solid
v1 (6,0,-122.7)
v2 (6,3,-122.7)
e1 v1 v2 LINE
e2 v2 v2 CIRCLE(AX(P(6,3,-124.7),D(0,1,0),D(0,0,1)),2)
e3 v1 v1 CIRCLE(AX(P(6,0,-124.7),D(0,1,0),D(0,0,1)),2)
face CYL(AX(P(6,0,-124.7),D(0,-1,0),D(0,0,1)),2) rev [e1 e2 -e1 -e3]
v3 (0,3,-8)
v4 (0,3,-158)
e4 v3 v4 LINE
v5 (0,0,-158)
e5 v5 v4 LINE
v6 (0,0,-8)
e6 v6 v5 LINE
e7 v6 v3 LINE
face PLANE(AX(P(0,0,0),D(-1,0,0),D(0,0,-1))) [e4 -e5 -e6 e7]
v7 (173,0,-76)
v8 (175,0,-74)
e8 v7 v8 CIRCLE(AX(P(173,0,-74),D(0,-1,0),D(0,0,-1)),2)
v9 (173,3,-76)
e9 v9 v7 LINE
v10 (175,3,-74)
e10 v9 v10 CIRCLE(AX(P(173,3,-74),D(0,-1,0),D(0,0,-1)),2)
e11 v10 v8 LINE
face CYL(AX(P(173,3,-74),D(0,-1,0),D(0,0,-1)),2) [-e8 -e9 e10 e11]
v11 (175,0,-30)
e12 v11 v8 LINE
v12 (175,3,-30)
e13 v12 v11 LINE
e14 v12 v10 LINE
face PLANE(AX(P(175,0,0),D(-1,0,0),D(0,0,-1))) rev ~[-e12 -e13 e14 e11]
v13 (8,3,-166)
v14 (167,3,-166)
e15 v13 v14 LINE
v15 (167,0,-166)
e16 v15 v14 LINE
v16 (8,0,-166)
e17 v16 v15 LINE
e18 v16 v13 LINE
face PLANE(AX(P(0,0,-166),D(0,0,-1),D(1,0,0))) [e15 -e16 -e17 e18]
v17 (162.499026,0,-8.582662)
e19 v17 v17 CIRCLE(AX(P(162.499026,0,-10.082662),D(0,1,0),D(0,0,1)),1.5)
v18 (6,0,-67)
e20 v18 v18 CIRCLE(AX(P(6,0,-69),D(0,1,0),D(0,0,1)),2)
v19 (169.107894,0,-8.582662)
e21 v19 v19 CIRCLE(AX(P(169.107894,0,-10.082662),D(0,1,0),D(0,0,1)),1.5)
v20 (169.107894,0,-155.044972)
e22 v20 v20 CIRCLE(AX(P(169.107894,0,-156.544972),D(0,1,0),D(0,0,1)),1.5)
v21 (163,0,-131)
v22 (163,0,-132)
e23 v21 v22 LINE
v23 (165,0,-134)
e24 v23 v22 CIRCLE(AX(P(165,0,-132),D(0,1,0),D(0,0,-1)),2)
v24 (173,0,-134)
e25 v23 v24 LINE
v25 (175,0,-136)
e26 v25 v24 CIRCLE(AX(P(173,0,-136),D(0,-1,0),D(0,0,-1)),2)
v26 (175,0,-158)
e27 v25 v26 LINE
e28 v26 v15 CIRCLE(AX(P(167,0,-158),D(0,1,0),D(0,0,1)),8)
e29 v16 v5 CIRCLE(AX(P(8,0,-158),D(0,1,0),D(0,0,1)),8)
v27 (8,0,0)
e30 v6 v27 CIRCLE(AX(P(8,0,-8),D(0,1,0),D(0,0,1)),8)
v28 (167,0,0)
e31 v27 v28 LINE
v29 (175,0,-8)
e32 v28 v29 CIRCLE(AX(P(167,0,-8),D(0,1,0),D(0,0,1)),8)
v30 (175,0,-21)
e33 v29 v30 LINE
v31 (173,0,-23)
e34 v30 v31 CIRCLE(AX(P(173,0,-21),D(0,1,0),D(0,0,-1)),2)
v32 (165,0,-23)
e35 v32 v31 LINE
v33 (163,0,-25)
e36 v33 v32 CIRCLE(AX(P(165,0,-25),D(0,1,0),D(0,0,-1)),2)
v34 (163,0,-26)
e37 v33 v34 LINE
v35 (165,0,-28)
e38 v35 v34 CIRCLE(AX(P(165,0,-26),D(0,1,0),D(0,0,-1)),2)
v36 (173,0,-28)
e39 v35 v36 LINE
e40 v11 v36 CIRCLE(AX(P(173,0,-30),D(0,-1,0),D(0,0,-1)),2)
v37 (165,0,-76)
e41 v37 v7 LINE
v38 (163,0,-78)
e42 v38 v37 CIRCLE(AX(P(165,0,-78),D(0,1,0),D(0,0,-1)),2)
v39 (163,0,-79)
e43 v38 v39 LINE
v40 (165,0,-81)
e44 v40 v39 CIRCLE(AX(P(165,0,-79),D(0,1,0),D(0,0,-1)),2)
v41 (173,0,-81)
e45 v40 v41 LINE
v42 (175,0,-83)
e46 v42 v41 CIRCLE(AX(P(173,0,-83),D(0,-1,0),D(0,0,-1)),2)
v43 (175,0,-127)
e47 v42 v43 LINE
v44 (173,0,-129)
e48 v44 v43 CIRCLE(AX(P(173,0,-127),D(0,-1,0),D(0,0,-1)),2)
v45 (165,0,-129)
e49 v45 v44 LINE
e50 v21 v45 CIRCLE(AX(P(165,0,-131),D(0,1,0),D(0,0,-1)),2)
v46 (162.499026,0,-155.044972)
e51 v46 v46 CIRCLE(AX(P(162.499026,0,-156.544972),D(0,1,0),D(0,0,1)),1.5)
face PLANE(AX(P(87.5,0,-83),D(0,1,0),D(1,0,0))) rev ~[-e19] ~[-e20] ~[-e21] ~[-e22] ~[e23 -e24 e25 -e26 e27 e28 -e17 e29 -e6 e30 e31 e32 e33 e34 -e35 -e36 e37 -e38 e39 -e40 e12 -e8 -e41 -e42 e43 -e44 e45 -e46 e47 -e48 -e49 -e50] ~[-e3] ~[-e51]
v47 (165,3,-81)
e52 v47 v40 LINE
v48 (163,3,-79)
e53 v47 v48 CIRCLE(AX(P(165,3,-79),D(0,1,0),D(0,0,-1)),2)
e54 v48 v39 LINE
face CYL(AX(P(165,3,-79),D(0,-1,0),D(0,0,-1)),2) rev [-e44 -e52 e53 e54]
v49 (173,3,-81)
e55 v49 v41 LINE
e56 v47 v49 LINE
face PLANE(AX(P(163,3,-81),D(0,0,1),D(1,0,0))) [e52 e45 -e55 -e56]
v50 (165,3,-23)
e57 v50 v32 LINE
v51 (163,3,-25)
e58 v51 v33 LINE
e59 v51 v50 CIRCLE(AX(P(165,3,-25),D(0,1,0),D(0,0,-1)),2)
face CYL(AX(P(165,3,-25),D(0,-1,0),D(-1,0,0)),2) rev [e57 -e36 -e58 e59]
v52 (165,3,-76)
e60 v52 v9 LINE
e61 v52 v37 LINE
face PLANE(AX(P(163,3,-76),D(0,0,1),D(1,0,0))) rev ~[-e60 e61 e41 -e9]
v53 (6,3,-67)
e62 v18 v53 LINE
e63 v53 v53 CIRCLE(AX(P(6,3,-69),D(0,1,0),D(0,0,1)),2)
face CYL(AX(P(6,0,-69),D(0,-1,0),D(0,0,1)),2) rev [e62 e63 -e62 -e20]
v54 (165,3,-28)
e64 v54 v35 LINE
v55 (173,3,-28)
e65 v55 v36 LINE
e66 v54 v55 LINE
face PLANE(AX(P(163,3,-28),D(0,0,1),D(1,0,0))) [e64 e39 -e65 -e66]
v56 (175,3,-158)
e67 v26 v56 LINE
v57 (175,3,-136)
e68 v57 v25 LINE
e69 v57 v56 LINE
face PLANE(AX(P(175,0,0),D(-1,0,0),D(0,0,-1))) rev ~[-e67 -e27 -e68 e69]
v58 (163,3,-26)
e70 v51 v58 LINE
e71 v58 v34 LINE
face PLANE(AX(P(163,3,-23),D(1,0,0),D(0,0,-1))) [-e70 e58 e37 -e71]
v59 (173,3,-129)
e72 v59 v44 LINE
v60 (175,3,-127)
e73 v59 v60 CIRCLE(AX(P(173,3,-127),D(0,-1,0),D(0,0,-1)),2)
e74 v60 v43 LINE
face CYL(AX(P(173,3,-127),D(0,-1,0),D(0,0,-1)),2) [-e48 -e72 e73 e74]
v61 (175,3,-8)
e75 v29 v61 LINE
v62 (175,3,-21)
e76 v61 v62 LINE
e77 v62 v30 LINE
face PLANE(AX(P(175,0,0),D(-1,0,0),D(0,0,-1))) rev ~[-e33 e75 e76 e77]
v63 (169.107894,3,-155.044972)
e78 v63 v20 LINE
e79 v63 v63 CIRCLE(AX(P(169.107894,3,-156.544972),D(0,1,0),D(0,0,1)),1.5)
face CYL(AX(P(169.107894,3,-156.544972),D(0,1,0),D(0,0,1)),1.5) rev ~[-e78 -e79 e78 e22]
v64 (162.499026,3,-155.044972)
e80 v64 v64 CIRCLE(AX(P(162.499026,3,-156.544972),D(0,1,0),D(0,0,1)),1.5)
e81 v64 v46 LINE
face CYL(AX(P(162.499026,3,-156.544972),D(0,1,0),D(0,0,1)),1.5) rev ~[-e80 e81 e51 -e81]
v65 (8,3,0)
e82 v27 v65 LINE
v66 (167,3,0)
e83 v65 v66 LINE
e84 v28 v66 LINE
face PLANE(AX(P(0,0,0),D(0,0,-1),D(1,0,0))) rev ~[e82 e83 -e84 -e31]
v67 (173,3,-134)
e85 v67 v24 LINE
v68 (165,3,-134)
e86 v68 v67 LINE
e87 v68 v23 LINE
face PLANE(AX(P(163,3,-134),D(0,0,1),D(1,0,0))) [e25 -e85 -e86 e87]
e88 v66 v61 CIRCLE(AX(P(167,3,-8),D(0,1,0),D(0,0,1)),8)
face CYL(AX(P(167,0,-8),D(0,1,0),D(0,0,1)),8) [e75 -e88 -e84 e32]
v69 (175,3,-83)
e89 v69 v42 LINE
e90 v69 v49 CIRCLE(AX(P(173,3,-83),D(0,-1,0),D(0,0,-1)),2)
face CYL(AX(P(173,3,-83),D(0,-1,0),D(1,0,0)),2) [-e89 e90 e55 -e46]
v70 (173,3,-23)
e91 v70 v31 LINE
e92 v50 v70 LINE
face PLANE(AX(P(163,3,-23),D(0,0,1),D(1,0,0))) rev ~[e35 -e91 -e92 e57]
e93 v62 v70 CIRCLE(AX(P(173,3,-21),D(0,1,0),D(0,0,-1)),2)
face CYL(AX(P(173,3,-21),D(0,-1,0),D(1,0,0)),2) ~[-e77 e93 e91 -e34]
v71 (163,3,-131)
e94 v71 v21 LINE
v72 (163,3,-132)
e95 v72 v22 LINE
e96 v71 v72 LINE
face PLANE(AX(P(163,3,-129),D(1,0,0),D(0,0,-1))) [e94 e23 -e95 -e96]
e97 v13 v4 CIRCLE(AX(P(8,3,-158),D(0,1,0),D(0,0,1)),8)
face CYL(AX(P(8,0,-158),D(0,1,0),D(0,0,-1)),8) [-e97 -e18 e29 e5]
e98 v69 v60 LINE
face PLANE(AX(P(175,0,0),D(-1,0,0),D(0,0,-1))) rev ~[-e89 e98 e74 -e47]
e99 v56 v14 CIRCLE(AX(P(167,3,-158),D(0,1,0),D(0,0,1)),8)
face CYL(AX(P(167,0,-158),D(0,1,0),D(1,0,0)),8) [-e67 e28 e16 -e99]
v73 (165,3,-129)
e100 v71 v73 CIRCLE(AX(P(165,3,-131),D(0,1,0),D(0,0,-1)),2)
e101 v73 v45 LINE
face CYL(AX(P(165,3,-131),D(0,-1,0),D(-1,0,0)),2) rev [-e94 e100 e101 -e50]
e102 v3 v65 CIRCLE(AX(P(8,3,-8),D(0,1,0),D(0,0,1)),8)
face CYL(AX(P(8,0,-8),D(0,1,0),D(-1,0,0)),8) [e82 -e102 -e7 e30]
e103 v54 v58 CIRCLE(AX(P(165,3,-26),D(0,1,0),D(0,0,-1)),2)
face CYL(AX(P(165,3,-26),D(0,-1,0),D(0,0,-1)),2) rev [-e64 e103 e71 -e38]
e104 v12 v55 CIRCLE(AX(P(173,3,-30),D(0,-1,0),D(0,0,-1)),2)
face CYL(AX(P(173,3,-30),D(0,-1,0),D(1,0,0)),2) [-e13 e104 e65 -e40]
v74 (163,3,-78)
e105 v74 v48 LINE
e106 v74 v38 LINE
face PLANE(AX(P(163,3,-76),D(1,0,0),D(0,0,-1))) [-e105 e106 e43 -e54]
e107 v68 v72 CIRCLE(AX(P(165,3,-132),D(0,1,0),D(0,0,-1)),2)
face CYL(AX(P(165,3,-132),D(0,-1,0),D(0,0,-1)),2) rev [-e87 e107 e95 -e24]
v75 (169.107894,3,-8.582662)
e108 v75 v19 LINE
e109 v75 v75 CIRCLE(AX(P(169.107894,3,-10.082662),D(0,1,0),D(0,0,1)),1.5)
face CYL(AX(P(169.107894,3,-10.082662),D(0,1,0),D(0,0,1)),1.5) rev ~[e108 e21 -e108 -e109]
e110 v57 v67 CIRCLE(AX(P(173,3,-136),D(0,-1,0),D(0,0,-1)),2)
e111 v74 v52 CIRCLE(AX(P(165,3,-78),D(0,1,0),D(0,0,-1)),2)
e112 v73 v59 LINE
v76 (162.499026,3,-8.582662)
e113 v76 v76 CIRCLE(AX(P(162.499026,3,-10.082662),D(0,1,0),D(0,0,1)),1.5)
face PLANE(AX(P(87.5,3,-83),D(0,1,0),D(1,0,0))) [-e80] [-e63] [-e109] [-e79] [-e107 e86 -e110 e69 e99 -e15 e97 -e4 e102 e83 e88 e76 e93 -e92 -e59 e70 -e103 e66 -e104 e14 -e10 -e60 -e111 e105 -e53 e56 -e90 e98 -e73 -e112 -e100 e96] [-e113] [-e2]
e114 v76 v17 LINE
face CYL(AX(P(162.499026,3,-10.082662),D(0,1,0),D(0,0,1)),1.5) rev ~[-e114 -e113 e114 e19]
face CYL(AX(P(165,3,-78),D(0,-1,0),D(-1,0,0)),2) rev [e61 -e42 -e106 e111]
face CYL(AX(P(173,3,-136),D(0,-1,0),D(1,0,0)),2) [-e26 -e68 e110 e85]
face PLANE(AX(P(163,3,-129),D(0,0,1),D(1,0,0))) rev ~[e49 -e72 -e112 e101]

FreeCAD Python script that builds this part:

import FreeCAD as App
import Part
import Sketcher


def edges_at(feature, points):
    """Names of the edges that pass closest to the given points."""
    edges = feature.Shape.Edges
    near = lambda p: min(range(len(edges)), key=lambda i: edges[i].distToShape(Part.Vertex(*p))[0])
    return sorted({f"Edge{near(p) + 1}" for p in points})


def add_polygon(sketch, points):
    """Adds a closed chain of lines whose ends are joined by coincident constraints."""
    first, n = sketch.GeometryCount, len(points)
    for a, b in zip(points, points[1:] + points[:1]):
        sketch.addGeometry(Part.LineSegment(App.Vector(*a, 0), App.Vector(*b, 0)), False)
    for i in range(n):
        sketch.addConstraint(Sketcher.Constraint("Coincident", first + i, 2, first + (i + 1) % n, 1))

doc = App.newDocument("Part")
params = doc.addObject("Spreadsheet::Sheet", "Params")
for row, (alias, value) in enumerate([
    ("sketch1_diameter", "4 mm"),
    ("sketch1_width", "175 mm"),
    ("sketch1_height", "166 mm"),
    ("pad1_length", "3 mm"),
    ("sketch2_width", "12 mm"),
    ("sketch2_height", "5 mm"),
    ("fillet_radius", "2 mm"),
    ("fillet2_radius", "8 mm"),
    ("sketch3_diameter", "3 mm"),
], start=1):
    params.set(f"A{row}", alias)
    params.set(f"B{row}", "=" + value)
    params.setAlias(f"B{row}", alias)

body = doc.addObject("PartDesign::Body", "Body")

sketch1 = body.newObject("Sketcher::SketchObject", "Sketch")
sketch1.AttachmentSupport = (doc.getObject("XZ_Plane"), [""])
sketch1.MapMode = "FlatFace"
add_polygon(sketch1, [(0, -166), (0, 0), (175, 0), (175, -166)])
sketch1.addGeometry(Part.Circle(App.Vector(6, -69, 0), App.Vector(0, 0, 1), 2), False)
sketch1.addGeometry(Part.Circle(App.Vector(6, -124.7, 0), App.Vector(0, 0, 1), 2), False)
sketch1.addConstraint(Sketcher.Constraint("Vertical", 0))
sketch1.addConstraint(Sketcher.Constraint("Horizontal", 1))
sketch1.addConstraint(Sketcher.Constraint("Vertical", 2))
sketch1.addConstraint(Sketcher.Constraint("Horizontal", 3))
sketch1.addConstraint(Sketcher.Constraint("Coincident", 0, 2, -1, 1))
sketch1.addConstraint(Sketcher.Constraint("Equal", 4, 5))
sketch1.addConstraint(Sketcher.Constraint("Vertical", 4, 3, 5, 3))
sketch1.addConstraint(Sketcher.Constraint("Diameter", 4, 4.0))
sketch1.addConstraint(Sketcher.Constraint("DistanceX", 1, 1, 1, 2, 175.0))
sketch1.addConstraint(Sketcher.Constraint("DistanceY", 0, 1, 0, 2, 166.0))
sketch1.addConstraint(Sketcher.Constraint("DistanceX", -1, 1, 4, 3, 6.0))
sketch1.addConstraint(Sketcher.Constraint("DistanceY", 4, 3, -1, 1, 69.0))
sketch1.addConstraint(Sketcher.Constraint("DistanceY", 5, 3, -1, 1, 124.7))
sketch1.setExpression("Constraints[11]", "Params.sketch1_diameter")
sketch1.setExpression("Constraints[12]", "Params.sketch1_width")
sketch1.setExpression("Constraints[13]", "Params.sketch1_height")
pad1 = body.newObject("PartDesign::Pad", "Pad")
pad1.Profile = sketch1
pad1.setExpression("Length", "Params.pad1_length")
pad1.Reversed = True

sketch2 = body.newObject("Sketcher::SketchObject", "Sketch001")
sketch2.AttachmentSupport = (doc.getObject("XZ_Plane"), [""])
sketch2.MapMode = "FlatFace"
sketch2.AttachmentOffset = App.Placement(App.Vector(0, 0, -3), App.Rotation())
add_polygon(sketch2, [(163, -134), (163, -129), (175, -129), (175, -134)])
add_polygon(sketch2, [(163, -81), (163, -76), (175, -76), (175, -81)])
add_polygon(sketch2, [(163, -28), (163, -23), (175, -23), (175, -28)])
sketch2.addConstraint(Sketcher.Constraint("Vertical", 0))
sketch2.addConstraint(Sketcher.Constraint("Horizontal", 1))
sketch2.addConstraint(Sketcher.Constraint("Vertical", 2))
sketch2.addConstraint(Sketcher.Constraint("Horizontal", 3))
sketch2.addConstraint(Sketcher.Constraint("Vertical", 4))
sketch2.addConstraint(Sketcher.Constraint("Horizontal", 5))
sketch2.addConstraint(Sketcher.Constraint("Vertical", 6))
sketch2.addConstraint(Sketcher.Constraint("Horizontal", 7))
sketch2.addConstraint(Sketcher.Constraint("Vertical", 8))
sketch2.addConstraint(Sketcher.Constraint("Horizontal", 9))
sketch2.addConstraint(Sketcher.Constraint("Vertical", 10))
sketch2.addConstraint(Sketcher.Constraint("Horizontal", 11))
sketch2.addConstraint(Sketcher.Constraint("Vertical", 3, 2, 4, 2))
sketch2.addConstraint(Sketcher.Constraint("Vertical", 2, 2, 5, 2))
sketch2.addConstraint(Sketcher.Constraint("Vertical", 7, 2, 8, 2))
sketch2.addConstraint(Sketcher.Constraint("Vertical", 6, 2, 9, 2))
sketch2.addConstraint(Sketcher.Constraint("Equal", 2, 4))
sketch2.addConstraint(Sketcher.Constraint("Equal", 6, 8))
sketch2.addConstraint(Sketcher.Constraint("DistanceX", 1, 1, 1, 2, 12.0))
sketch2.addConstraint(Sketcher.Constraint("DistanceY", 0, 1, 0, 2, 5.0))
sketch2.addConstraint(Sketcher.Constraint("DistanceX", -1, 1, 0, 2, 163.0))
sketch2.addConstraint(Sketcher.Constraint("DistanceY", 0, 2, -1, 1, 129.0))
sketch2.addConstraint(Sketcher.Constraint("DistanceY", 4, 2, -1, 1, 76.0))
sketch2.addConstraint(Sketcher.Constraint("DistanceY", 8, 2, -1, 1, 23.0))
sketch2.setExpression("Constraints[30]", "Params.sketch2_width")
sketch2.setExpression("Constraints[31]", "Params.sketch2_height")
pocket1 = body.newObject("PartDesign::Pocket", "Pocket")
pocket1.Profile = sketch2
pocket1.Type = "ThroughAll"
pocket1.Reversed = True
doc.recompute()

fillet = body.newObject("PartDesign::Fillet", "Fillet")
fillet.Base = (pocket1, edges_at(pocket1, [
    (175, 1.5, -134),
    (175, 1.5, -129),
    (163, 1.5, -129),
    (163, 1.5, -134),
    (175, 1.5, -81),
    (175, 1.5, -76),
    (163, 1.5, -76),
    (163, 1.5, -81),
    (175, 1.5, -28),
    (175, 1.5, -23),
    (163, 1.5, -23),
    (163, 1.5, -28),
]))
fillet.setExpression("Radius", "Params.fillet_radius")
doc.recompute()

fillet2 = body.newObject("PartDesign::Fillet", "Fillet001")
fillet2.Base = (fillet, edges_at(fillet, [
    (0, 1.5, -166),
    (175, 1.5, -166),
    (175, 1.5, 0),
    (0, 1.5, 0),
]))
fillet2.setExpression("Radius", "Params.fillet2_radius")

sketch3 = body.newObject("Sketcher::SketchObject", "Sketch002")
sketch3.AttachmentSupport = (doc.getObject("XZ_Plane"), [""])
sketch3.MapMode = "FlatFace"
sketch3.AttachmentOffset = App.Placement(App.Vector(0, 0, -3), App.Rotation())
sketch3.addGeometry(Part.Circle(App.Vector(162.5, -10.1, 0), App.Vector(0, 0, 1), 1.5), False)
sketch3.addGeometry(Part.Circle(App.Vector(169.1, -10.1, 0), App.Vector(0, 0, 1), 1.5), False)
sketch3.addGeometry(Part.Circle(App.Vector(162.5, -156.5, 0), App.Vector(0, 0, 1), 1.5), False)
sketch3.addGeometry(Part.Circle(App.Vector(169.1, -156.5, 0), App.Vector(0, 0, 1), 1.5), False)
sketch3.addConstraint(Sketcher.Constraint("Equal", 0, 1))
sketch3.addConstraint(Sketcher.Constraint("Equal", 1, 2))
sketch3.addConstraint(Sketcher.Constraint("Equal", 2, 3))
sketch3.addConstraint(Sketcher.Constraint("Horizontal", 0, 3, 1, 3))
sketch3.addConstraint(Sketcher.Constraint("Horizontal", 2, 3, 3, 3))
sketch3.addConstraint(Sketcher.Constraint("Vertical", 0, 3, 2, 3))
sketch3.addConstraint(Sketcher.Constraint("Vertical", 1, 3, 3, 3))
sketch3.addConstraint(Sketcher.Constraint("Diameter", 0, 3.0))
sketch3.addConstraint(Sketcher.Constraint("DistanceY", 0, 3, -1, 1, 10.082662))
sketch3.addConstraint(Sketcher.Constraint("DistanceY", 2, 3, -1, 1, 156.544972))
sketch3.addConstraint(Sketcher.Constraint("DistanceX", 0, 3, 1, 3, 6.608869))
sketch3.addConstraint(Sketcher.Constraint("DistanceX", -1, 1, 0, 3, 162.499026))
sketch3.setExpression("Constraints[7]", "Params.sketch3_diameter")
pocket2 = body.newObject("PartDesign::Pocket", "Pocket001")
pocket2.Profile = sketch3
pocket2.Type = "ThroughAll"
pocket2.Reversed = True

doc.recompute()
